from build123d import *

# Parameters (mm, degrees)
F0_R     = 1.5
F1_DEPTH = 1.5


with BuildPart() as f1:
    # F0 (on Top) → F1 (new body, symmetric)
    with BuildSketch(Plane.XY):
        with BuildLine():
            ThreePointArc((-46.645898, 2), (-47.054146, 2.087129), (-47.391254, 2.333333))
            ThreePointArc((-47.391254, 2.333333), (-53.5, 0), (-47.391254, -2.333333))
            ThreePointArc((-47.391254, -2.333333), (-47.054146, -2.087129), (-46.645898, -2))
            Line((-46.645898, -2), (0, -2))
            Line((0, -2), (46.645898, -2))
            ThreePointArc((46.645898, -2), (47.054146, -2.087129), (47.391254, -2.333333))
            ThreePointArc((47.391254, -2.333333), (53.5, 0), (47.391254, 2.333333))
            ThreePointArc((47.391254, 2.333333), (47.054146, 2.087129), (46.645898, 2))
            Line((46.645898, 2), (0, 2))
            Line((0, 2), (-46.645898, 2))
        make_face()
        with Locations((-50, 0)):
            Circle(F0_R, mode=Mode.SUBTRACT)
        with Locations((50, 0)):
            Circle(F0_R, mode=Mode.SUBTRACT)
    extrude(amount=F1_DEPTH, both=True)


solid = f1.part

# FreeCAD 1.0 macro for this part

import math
import FreeCAD as App
import Part
import Sketcher

V = App.Vector

doc = App.newDocument("Part")
params = doc.addObject("Spreadsheet::Sheet", "Params")
for row, (alias, value) in enumerate([
    ("sketch1_diameter", "3 mm"),
    ("sketch1_radius", "1.000002 mm"),
    ("sketch1_radius2", "3.5 mm"),
    ("pad1_length", "3 mm"),
], start=1):
    params.set(f"A{row}", alias)
    params.set(f"B{row}", "=" + value)
    params.setAlias(f"B{row}", alias)

body = doc.addObject("PartDesign::Body", "Body")

# Sketch on XY plane
sketch1 = doc.addObject("Sketcher::SketchObject", "Sketch")
body.addObject(sketch1)
sketch1.AttachmentSupport = (doc.XY_Plane, [""])
sketch1.MapMode = "FlatFace"
sketch1.addGeometry(Part.ArcOfCircle(Part.Circle(V(-46.645897, 3.000002, 0), V(0, 0, 1), 1.000002), math.radians(-138.189612), math.radians(-90.00003)), False)
sketch1.addGeometry(Part.ArcOfCircle(Part.Circle(V(-50, 0, 0), V(0, 0, 1), 3.5), math.radians(41.810309), math.radians(318.189691)), False)
sketch1.addGeometry(Part.ArcOfCircle(Part.Circle(V(-46.645897, -3.000002, 0), V(0, 0, 1), 1.000002), math.radians(90.00003), math.radians(138.189612)), False)
sketch1.addGeometry(Part.LineSegment(V(-46.645898, -2, 0), V(46.645898, -2, 0)), False)
sketch1.addGeometry(Part.ArcOfCircle(Part.Circle(V(46.645897, -3.000002, 0), V(0, 0, 1), 1.000002), math.radians(41.810388), math.radians(89.99997)), False)
sketch1.addGeometry(Part.ArcOfCircle(Part.Circle(V(50, 0, 0), V(0, 0, 1), 3.5), math.radians(-138.189691), math.radians(138.189691)), False)
sketch1.addGeometry(Part.ArcOfCircle(Part.Circle(V(46.645897, 3.000002, 0), V(0, 0, 1), 1.000002), math.radians(-89.99997), math.radians(-41.810388)), False)
sketch1.addGeometry(Part.LineSegment(V(46.645898, 2, 0), V(-46.645898, 2, 0)), False)
sketch1.addGeometry(Part.Circle(V(-50, 0, 0), V(0, 0, 1), 1.5), False)
sketch1.addGeometry(Part.Circle(V(50, 0, 0), V(0, 0, 1), 1.5), False)
sketch1.addConstraint(Sketcher.Constraint("Tangent", 0, 1, 1, 1))
sketch1.addConstraint(Sketcher.Constraint("Tangent", 1, 2, 2, 2))
sketch1.addConstraint(Sketcher.Constraint("Tangent", 2, 1, 3, 1))
sketch1.addConstraint(Sketcher.Constraint("Tangent", 3, 2, 4, 2))
sketch1.addConstraint(Sketcher.Constraint("Tangent", 4, 1, 5, 1))
sketch1.addConstraint(Sketcher.Constraint("Tangent", 5, 2, 6, 2))
sketch1.addConstraint(Sketcher.Constraint("Tangent", 6, 1, 7, 1))
sketch1.addConstraint(Sketcher.Constraint("Tangent", 7, 2, 0, 2))
sketch1.addConstraint(Sketcher.Constraint("Horizontal", 3))
sketch1.addConstraint(Sketcher.Constraint("Horizontal", 7))
sketch1.addConstraint(Sketcher.Constraint("Coincident", 8, 3, 1, 3))
sketch1.addConstraint(Sketcher.Constraint("Coincident", 9, 3, 5, 3))
sketch1.addConstraint(Sketcher.Constraint("Equal", 0, 2))
sketch1.addConstraint(Sketcher.Constraint("Equal", 2, 4))
sketch1.addConstraint(Sketcher.Constraint("Equal", 1, 5))
sketch1.addConstraint(Sketcher.Constraint("Equal", 4, 6))
sketch1.addConstraint(Sketcher.Constraint("Equal", 8, 9))
sketch1.addConstraint(Sketcher.Constraint("Symmetric", 0, 3, 4, 3, -1, 1))
sketch1.addConstraint(Sketcher.Constraint("Symmetric", 1, 3, 5, 3, -2))
sketch1.addConstraint(Sketcher.Constraint("Diameter", 8, 3.0))
sketch1.addConstraint(Sketcher.Constraint("Radius", 0, 1.000002))
sketch1.addConstraint(Sketcher.Constraint("Radius", 1, 3.5))
sketch1.addConstraint(Sketcher.Constraint("DistanceY", -1, 1, 0, 3, 3.000002))
sketch1.addConstraint(Sketcher.Constraint("DistanceX", 1, 3, -1, 1, 50.0))
sketch1.setExpression("Constraints[19]", "Params.sketch1_diameter")
sketch1.setExpression("Constraints[20]", "Params.sketch1_radius")
sketch1.setExpression("Constraints[21]", "Params.sketch1_radius2")
pad1 = doc.addObject("PartDesign::Pad", "Pad")
body.addObject(pad1)
pad1.Profile = sketch1
pad1.setExpression("Length", "Params.pad1_length")
pad1.Midplane = True

doc.recompute()
